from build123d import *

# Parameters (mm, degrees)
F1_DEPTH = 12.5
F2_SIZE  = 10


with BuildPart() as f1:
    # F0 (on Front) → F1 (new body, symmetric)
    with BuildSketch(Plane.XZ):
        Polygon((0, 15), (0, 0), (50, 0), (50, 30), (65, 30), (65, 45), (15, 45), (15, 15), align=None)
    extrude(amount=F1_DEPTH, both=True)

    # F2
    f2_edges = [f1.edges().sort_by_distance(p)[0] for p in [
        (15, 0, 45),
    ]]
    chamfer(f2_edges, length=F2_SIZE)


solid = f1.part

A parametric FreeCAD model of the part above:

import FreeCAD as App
import Part
import Sketcher
Q = App.Units.Quantity


def edges_at(feature, points):
    """Names of the edges that pass closest to the given points."""
    edges = feature.Shape.Edges
    near = lambda p: min(range(len(edges)), key=lambda i: edges[i].distToShape(Part.Vertex(*p))[0])
    return sorted({f"Edge{near(p) + 1}" for p in points})

doc = App.newDocument("Part")
params = doc.addObject("Spreadsheet::Sheet", "Params")
for row, (alias, value) in enumerate([
    ("sketch1_width", "50 mm"),
    ("sketch1_width2", "15 mm"),
    ("sketch1_height", "30 mm"),
    ("pad1_length", "25 mm"),
    ("chamfer_size", "10 mm"),
], start=1):
    params.set(f"A{row}", alias)
    params.set(f"B{row}", "=" + value)
    params.setAlias(f"B{row}", alias)

body = doc.addObject("PartDesign::Body", "Body")

# Sketch on XZ plane
sketch1 = body.newObject("Sketcher::SketchObject", "Sketch")
sketch1.AttachmentSupport = (doc.getObject("XZ_Plane"), [""])
sketch1.MapMode = "FlatFace"
sketch1.addGeometry(Part.LineSegment(App.Vector(0, 15, 0), App.Vector(0, 0, 0)), False)
sketch1.addGeometry(Part.LineSegment(App.Vector(0, 0, 0), App.Vector(50, 0, 0)), False)
sketch1.addGeometry(Part.LineSegment(App.Vector(50, 0, 0), App.Vector(50, 30, 0)), False)
sketch1.addGeometry(Part.LineSegment(App.Vector(50, 30, 0), App.Vector(65, 30, 0)), False)
sketch1.addGeometry(Part.LineSegment(App.Vector(65, 30, 0), App.Vector(65, 45, 0)), False)
sketch1.addGeometry(Part.LineSegment(App.Vector(65, 45, 0), App.Vector(15, 45, 0)), False)
sketch1.addGeometry(Part.LineSegment(App.Vector(15, 45, 0), App.Vector(15, 15, 0)), False)
sketch1.addGeometry(Part.LineSegment(App.Vector(15, 15, 0), App.Vector(0, 15, 0)), False)
sketch1.addConstraint(Sketcher.Constraint("Coincident", 0, 2, 1, 1))
sketch1.addConstraint(Sketcher.Constraint("Coincident", 1, 2, 2, 1))
sketch1.addConstraint(Sketcher.Constraint("Coincident", 2, 2, 3, 1))
sketch1.addConstraint(Sketcher.Constraint("Coincident", 3, 2, 4, 1))
sketch1.addConstraint(Sketcher.Constraint("Coincident", 4, 2, 5, 1))
sketch1.addConstraint(Sketcher.Constraint("Coincident", 5, 2, 6, 1))
sketch1.addConstraint(Sketcher.Constraint("Coincident", 6, 2, 7, 1))
sketch1.addConstraint(Sketcher.Constraint("Coincident", 7, 2, 0, 1))
sketch1.addConstraint(Sketcher.Constraint("Vertical", 0))
sketch1.addConstraint(Sketcher.Constraint("Horizontal", 1))
sketch1.addConstraint(Sketcher.Constraint("Vertical", 2))
sketch1.addConstraint(Sketcher.Constraint("Horizontal", 3))
sketch1.addConstraint(Sketcher.Constraint("Vertical", 4))
sketch1.addConstraint(Sketcher.Constraint("Horizontal", 5))
sketch1.addConstraint(Sketcher.Constraint("Vertical", 6))
sketch1.addConstraint(Sketcher.Constraint("Horizontal", 7))
sketch1.addConstraint(Sketcher.Constraint("Coincident", 0, 2, -1, 1))
sketch1.addConstraint(Sketcher.Constraint("Equal", 1, 5))
sketch1.addConstraint(Sketcher.Constraint("Equal", 7, 0))
sketch1.addConstraint(Sketcher.Constraint("Equal", 0, 4))
sketch1.addConstraint(Sketcher.Constraint("DistanceX", 1, 1, 1, 2, Q("50 mm")))
sketch1.addConstraint(Sketcher.Constraint("DistanceX", 3, 1, 3, 2, Q("15 mm")))
sketch1.addConstraint(Sketcher.Constraint("DistanceY", 2, 1, 2, 2, Q("30 mm")))
sketch1.setExpression("Constraints[20]", "Params.sketch1_width")
sketch1.setExpression("Constraints[21]", "Params.sketch1_width2")
sketch1.setExpression("Constraints[22]", "Params.sketch1_height")
pad1 = body.newObject("PartDesign::Pad", "Pad")
pad1.Profile = sketch1
pad1.setExpression("Length", "Params.pad1_length")
pad1.Midplane = True
doc.recompute()

chamfer = body.newObject("PartDesign::Chamfer", "Chamfer")
chamfer.Base = (pad1, edges_at(pad1, [(15, 0, 45)]))
chamfer.setExpression("Size", "Params.chamfer_size")

doc.recompute()
